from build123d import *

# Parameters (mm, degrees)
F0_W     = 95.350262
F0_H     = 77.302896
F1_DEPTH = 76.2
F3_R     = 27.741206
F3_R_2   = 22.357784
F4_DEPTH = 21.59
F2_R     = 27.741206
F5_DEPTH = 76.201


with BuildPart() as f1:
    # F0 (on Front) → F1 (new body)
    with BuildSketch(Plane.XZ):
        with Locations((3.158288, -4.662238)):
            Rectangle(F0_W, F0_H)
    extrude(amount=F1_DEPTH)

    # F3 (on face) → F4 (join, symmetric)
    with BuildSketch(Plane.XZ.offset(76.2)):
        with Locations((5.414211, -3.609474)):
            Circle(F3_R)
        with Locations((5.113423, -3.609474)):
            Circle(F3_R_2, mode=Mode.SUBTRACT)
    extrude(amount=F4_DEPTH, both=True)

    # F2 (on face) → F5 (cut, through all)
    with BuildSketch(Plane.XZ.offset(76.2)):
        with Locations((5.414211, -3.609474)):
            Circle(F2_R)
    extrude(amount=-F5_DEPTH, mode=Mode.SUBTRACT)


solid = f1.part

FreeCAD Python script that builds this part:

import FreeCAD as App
import Part
import Sketcher

doc = App.newDocument("Part")
params = doc.addObject("Spreadsheet::Sheet", "Params")
for row, (alias, value) in enumerate([
    ("pad1_length", "3 in"),
    ("pad2_length", "1.7 in"),
], start=1):
    params.set(f"A{row}", alias)
    params.set(f"B{row}", "=" + value)
    params.setAlias(f"B{row}", alias)

body = doc.addObject("PartDesign::Body", "Body")
body.AllowCompound = True

# Sketch on XZ plane
sketch1 = body.newObject("Sketcher::SketchObject", "Sketch")
sketch1.AttachmentSupport = (doc.getObject("XZ_Plane"), [""])
sketch1.MapMode = "FlatFace"
sketch1.addGeometry([
    Part.LineSegment(App.Vector(-45, 34, 0), App.Vector(-45, -43, 0)),
    Part.LineSegment(App.Vector(-45, -43, 0), App.Vector(51, -43, 0)),
    Part.LineSegment(App.Vector(51, -43, 0), App.Vector(51, 34, 0)),
    Part.LineSegment(App.Vector(51, 34, 0), App.Vector(-45, 34, 0)),
], False)
sketch1.addConstraint([
    Sketcher.Constraint("Coincident", 0, 2, 1, 1),
    Sketcher.Constraint("Coincident", 1, 2, 2, 1),
    Sketcher.Constraint("Coincident", 2, 2, 3, 1),
    Sketcher.Constraint("Coincident", 3, 2, 0, 1),
    Sketcher.Constraint("Vertical", 0),
    Sketcher.Constraint("Horizontal", 1),
    Sketcher.Constraint("Vertical", 2),
    Sketcher.Constraint("Horizontal", 3),
    Sketcher.Constraint("DistanceX", 1, 1, 1, 2, 95.350262),
    Sketcher.Constraint("DistanceY", 0, 2, 0, 1, 77.302896),
    Sketcher.Constraint("DistanceX", -1, 1, 1, 2, 50.833419),
    Sketcher.Constraint("DistanceY", -1, 1, 2, 2, 33.98921),
])
pad1 = body.newObject("PartDesign::Pad", "Pad")
pad1.Profile = sketch1
pad1.setExpression("Length", "Params.pad1_length")

# Sketch on XZ plane
sketch2 = body.newObject("Sketcher::SketchObject", "Sketch001")
sketch2.AttachmentSupport = (doc.getObject("XZ_Plane"), [""])
sketch2.MapMode = "FlatFace"
sketch2.AttachmentOffset = App.Placement(App.Vector(0, 0, 3 * 25.4), App.Rotation())
sketch2.addGeometry([
    Part.Circle(App.Vector(5, -4, 0), App.Vector(0, 0, 1), 28),
    Part.Circle(App.Vector(5, -4, 0), App.Vector(0, 0, 1), 22),
], False)
sketch2.addConstraint([
    Sketcher.Constraint("Horizontal", 0, 3, 1, 3),
    Sketcher.Constraint("Diameter", 0, 55.482412),
    Sketcher.Constraint("Diameter", 1, 44.715568),
    Sketcher.Constraint("DistanceX", -1, 1, 0, 3, 5.414211),
    Sketcher.Constraint("DistanceY", 0, 3, -1, 1, 3.609474),
    Sketcher.Constraint("DistanceX", -1, 1, 1, 3, 5.113423),
])
pad2 = body.newObject("PartDesign::Pad", "Pad001")
pad2.Profile = sketch2
pad2.setExpression("Length", "Params.pad2_length")
pad2.Midplane = True

# Sketch on XZ plane
sketch3 = body.newObject("Sketcher::SketchObject", "Sketch002")
sketch3.AttachmentSupport = (doc.getObject("XZ_Plane"), [""])
sketch3.MapMode = "FlatFace"
sketch3.AttachmentOffset = App.Placement(App.Vector(0, 0, 3 * 25.4), App.Rotation())
sketch3.addGeometry(Part.Circle(App.Vector(5, -4, 0), App.Vector(0, 0, 1), 28), False)
sketch3.addConstraint([
    Sketcher.Constraint("Diameter", 0, 55.482412),
    Sketcher.Constraint("DistanceX", -1, 1, 0, 3, 5.414211),
    Sketcher.Constraint("DistanceY", 0, 3, -1, 1, 3.609474),
])
pocket1 = body.newObject("PartDesign::Pocket", "Pocket")
pocket1.Profile = sketch3
pocket1.Type = "ThroughAll"

doc.recompute()
